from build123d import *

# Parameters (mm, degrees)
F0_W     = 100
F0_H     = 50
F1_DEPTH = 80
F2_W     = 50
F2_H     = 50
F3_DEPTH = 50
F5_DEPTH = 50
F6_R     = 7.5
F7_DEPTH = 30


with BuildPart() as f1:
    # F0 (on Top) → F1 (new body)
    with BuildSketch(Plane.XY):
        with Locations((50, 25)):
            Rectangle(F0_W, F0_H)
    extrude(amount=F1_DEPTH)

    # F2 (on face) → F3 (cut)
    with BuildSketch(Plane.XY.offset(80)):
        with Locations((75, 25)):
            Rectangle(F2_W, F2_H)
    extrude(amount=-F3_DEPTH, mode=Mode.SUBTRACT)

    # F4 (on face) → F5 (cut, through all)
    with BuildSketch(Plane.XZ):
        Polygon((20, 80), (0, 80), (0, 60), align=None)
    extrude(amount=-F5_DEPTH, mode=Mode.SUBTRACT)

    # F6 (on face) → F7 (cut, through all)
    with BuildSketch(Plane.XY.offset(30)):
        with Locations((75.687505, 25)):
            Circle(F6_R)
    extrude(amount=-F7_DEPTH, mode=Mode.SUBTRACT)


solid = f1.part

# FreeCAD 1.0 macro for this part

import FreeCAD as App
import Part
import Sketcher
Q = App.Units.Quantity


def add_polygon(sketch, points):
    """Adds a closed chain of lines whose ends are joined by coincident constraints."""
    first, n = sketch.GeometryCount, len(points)
    for a, b in zip(points, points[1:] + points[:1]):
        sketch.addGeometry(Part.LineSegment(App.Vector(*a, 0), App.Vector(*b, 0)), False)
    for i in range(n):
        sketch.addConstraint(Sketcher.Constraint("Coincident", first + i, 2, first + (i + 1) % n, 1))

doc = App.newDocument("Part")
body = doc.addObject("PartDesign::Body", "Body")

# Sketch on XY plane
sketch1 = doc.addObject("Sketcher::SketchObject", "Sketch")
body.addObject(sketch1)
sketch1.AttachmentSupport = (doc.XY_Plane, [""])
sketch1.MapMode = "FlatFace"
add_polygon(sketch1, [(0, 50), (0, 0), (100, 0), (100, 50)])  # lines 0-3
sketch1.addConstraint([
    Sketcher.Constraint("Vertical", 0),
    Sketcher.Constraint("Horizontal", 1),
    Sketcher.Constraint("Vertical", 2),
    Sketcher.Constraint("Horizontal", 3),
    Sketcher.Constraint("Coincident", 0, 2, -1, 1),
    Sketcher.Constraint("DistanceX", 1, 1, 1, 2, Q("100 mm")),
    Sketcher.Constraint("DistanceY", 0, 2, 0, 1, Q("50 mm")),
])
pad1 = doc.addObject("PartDesign::Pad", "Pad")
body.addObject(pad1)
pad1.Profile = sketch1
pad1.Length = 80

# Sketch on XY plane
sketch2 = doc.addObject("Sketcher::SketchObject", "Sketch001")
body.addObject(sketch2)
sketch2.AttachmentSupport = (doc.XY_Plane, [""])
sketch2.MapMode = "FlatFace"
sketch2.AttachmentOffset = App.Placement(App.Vector(0, 0, 80), App.Rotation())
add_polygon(sketch2, [(50, 50), (50, 0), (100, 0), (100, 50)])  # lines 0-3
sketch2.addConstraint([
    Sketcher.Constraint("Vertical", 0),
    Sketcher.Constraint("Horizontal", 1),
    Sketcher.Constraint("Vertical", 2),
    Sketcher.Constraint("Horizontal", 3),
    Sketcher.Constraint("PointOnObject", 0, 2, -1),
    Sketcher.Constraint("Equal", 3, 0),
    Sketcher.Constraint("DistanceX", 1, 1, 1, 2, Q("50 mm")),
    Sketcher.Constraint("DistanceX", -1, 1, 0, 2, Q("50 mm")),
])
pocket1 = doc.addObject("PartDesign::Pocket", "Pocket")
body.addObject(pocket1)
pocket1.Profile = sketch2
pocket1.Length = 50

# Sketch on XZ plane
sketch3 = doc.addObject("Sketcher::SketchObject", "Sketch002")
body.addObject(sketch3)
sketch3.AttachmentSupport = (doc.XZ_Plane, [""])
sketch3.MapMode = "FlatFace"
add_polygon(sketch3, [(20, 80), (0, 80), (0, 60)])  # lines 0-2
sketch3.addConstraint([
    Sketcher.Constraint("Horizontal", 0),
    Sketcher.Constraint("Vertical", 1),
    Sketcher.Constraint("PointOnObject", 0, 2, -2),
    Sketcher.Constraint("Equal", 0, 1),
    Sketcher.Constraint("DistanceX", 0, 2, 0, 1, Q("20 mm")),
    Sketcher.Constraint("DistanceY", -1, 1, 0, 2, Q("80 mm")),
])
pocket2 = doc.addObject("PartDesign::Pocket", "Pocket001")
body.addObject(pocket2)
pocket2.Profile = sketch3
pocket2.Type = "ThroughAll"

# Sketch on XY plane
sketch4 = doc.addObject("Sketcher::SketchObject", "Sketch003")
body.addObject(sketch4)
sketch4.AttachmentSupport = (doc.XY_Plane, [""])
sketch4.MapMode = "FlatFace"
sketch4.AttachmentOffset = App.Placement(App.Vector(0, 0, 30), App.Rotation())
sketch4.addGeometry(Part.Circle(App.Vector(76, 25, 0), App.Vector(0, 0, 1), 8), False)
sketch4.addConstraint([
    Sketcher.Constraint("Diameter", 0, Q("15 mm")),
    Sketcher.Constraint("DistanceY", -1, 1, 0, 3, Q("25 mm")),
    Sketcher.Constraint("DistanceX", -1, 1, 0, 3, Q("75.687505 mm")),
])
pocket3 = doc.addObject("PartDesign::Pocket", "Pocket002")
body.addObject(pocket3)
pocket3.Profile = sketch4
pocket3.Type = "ThroughAll"

doc.recompute()
